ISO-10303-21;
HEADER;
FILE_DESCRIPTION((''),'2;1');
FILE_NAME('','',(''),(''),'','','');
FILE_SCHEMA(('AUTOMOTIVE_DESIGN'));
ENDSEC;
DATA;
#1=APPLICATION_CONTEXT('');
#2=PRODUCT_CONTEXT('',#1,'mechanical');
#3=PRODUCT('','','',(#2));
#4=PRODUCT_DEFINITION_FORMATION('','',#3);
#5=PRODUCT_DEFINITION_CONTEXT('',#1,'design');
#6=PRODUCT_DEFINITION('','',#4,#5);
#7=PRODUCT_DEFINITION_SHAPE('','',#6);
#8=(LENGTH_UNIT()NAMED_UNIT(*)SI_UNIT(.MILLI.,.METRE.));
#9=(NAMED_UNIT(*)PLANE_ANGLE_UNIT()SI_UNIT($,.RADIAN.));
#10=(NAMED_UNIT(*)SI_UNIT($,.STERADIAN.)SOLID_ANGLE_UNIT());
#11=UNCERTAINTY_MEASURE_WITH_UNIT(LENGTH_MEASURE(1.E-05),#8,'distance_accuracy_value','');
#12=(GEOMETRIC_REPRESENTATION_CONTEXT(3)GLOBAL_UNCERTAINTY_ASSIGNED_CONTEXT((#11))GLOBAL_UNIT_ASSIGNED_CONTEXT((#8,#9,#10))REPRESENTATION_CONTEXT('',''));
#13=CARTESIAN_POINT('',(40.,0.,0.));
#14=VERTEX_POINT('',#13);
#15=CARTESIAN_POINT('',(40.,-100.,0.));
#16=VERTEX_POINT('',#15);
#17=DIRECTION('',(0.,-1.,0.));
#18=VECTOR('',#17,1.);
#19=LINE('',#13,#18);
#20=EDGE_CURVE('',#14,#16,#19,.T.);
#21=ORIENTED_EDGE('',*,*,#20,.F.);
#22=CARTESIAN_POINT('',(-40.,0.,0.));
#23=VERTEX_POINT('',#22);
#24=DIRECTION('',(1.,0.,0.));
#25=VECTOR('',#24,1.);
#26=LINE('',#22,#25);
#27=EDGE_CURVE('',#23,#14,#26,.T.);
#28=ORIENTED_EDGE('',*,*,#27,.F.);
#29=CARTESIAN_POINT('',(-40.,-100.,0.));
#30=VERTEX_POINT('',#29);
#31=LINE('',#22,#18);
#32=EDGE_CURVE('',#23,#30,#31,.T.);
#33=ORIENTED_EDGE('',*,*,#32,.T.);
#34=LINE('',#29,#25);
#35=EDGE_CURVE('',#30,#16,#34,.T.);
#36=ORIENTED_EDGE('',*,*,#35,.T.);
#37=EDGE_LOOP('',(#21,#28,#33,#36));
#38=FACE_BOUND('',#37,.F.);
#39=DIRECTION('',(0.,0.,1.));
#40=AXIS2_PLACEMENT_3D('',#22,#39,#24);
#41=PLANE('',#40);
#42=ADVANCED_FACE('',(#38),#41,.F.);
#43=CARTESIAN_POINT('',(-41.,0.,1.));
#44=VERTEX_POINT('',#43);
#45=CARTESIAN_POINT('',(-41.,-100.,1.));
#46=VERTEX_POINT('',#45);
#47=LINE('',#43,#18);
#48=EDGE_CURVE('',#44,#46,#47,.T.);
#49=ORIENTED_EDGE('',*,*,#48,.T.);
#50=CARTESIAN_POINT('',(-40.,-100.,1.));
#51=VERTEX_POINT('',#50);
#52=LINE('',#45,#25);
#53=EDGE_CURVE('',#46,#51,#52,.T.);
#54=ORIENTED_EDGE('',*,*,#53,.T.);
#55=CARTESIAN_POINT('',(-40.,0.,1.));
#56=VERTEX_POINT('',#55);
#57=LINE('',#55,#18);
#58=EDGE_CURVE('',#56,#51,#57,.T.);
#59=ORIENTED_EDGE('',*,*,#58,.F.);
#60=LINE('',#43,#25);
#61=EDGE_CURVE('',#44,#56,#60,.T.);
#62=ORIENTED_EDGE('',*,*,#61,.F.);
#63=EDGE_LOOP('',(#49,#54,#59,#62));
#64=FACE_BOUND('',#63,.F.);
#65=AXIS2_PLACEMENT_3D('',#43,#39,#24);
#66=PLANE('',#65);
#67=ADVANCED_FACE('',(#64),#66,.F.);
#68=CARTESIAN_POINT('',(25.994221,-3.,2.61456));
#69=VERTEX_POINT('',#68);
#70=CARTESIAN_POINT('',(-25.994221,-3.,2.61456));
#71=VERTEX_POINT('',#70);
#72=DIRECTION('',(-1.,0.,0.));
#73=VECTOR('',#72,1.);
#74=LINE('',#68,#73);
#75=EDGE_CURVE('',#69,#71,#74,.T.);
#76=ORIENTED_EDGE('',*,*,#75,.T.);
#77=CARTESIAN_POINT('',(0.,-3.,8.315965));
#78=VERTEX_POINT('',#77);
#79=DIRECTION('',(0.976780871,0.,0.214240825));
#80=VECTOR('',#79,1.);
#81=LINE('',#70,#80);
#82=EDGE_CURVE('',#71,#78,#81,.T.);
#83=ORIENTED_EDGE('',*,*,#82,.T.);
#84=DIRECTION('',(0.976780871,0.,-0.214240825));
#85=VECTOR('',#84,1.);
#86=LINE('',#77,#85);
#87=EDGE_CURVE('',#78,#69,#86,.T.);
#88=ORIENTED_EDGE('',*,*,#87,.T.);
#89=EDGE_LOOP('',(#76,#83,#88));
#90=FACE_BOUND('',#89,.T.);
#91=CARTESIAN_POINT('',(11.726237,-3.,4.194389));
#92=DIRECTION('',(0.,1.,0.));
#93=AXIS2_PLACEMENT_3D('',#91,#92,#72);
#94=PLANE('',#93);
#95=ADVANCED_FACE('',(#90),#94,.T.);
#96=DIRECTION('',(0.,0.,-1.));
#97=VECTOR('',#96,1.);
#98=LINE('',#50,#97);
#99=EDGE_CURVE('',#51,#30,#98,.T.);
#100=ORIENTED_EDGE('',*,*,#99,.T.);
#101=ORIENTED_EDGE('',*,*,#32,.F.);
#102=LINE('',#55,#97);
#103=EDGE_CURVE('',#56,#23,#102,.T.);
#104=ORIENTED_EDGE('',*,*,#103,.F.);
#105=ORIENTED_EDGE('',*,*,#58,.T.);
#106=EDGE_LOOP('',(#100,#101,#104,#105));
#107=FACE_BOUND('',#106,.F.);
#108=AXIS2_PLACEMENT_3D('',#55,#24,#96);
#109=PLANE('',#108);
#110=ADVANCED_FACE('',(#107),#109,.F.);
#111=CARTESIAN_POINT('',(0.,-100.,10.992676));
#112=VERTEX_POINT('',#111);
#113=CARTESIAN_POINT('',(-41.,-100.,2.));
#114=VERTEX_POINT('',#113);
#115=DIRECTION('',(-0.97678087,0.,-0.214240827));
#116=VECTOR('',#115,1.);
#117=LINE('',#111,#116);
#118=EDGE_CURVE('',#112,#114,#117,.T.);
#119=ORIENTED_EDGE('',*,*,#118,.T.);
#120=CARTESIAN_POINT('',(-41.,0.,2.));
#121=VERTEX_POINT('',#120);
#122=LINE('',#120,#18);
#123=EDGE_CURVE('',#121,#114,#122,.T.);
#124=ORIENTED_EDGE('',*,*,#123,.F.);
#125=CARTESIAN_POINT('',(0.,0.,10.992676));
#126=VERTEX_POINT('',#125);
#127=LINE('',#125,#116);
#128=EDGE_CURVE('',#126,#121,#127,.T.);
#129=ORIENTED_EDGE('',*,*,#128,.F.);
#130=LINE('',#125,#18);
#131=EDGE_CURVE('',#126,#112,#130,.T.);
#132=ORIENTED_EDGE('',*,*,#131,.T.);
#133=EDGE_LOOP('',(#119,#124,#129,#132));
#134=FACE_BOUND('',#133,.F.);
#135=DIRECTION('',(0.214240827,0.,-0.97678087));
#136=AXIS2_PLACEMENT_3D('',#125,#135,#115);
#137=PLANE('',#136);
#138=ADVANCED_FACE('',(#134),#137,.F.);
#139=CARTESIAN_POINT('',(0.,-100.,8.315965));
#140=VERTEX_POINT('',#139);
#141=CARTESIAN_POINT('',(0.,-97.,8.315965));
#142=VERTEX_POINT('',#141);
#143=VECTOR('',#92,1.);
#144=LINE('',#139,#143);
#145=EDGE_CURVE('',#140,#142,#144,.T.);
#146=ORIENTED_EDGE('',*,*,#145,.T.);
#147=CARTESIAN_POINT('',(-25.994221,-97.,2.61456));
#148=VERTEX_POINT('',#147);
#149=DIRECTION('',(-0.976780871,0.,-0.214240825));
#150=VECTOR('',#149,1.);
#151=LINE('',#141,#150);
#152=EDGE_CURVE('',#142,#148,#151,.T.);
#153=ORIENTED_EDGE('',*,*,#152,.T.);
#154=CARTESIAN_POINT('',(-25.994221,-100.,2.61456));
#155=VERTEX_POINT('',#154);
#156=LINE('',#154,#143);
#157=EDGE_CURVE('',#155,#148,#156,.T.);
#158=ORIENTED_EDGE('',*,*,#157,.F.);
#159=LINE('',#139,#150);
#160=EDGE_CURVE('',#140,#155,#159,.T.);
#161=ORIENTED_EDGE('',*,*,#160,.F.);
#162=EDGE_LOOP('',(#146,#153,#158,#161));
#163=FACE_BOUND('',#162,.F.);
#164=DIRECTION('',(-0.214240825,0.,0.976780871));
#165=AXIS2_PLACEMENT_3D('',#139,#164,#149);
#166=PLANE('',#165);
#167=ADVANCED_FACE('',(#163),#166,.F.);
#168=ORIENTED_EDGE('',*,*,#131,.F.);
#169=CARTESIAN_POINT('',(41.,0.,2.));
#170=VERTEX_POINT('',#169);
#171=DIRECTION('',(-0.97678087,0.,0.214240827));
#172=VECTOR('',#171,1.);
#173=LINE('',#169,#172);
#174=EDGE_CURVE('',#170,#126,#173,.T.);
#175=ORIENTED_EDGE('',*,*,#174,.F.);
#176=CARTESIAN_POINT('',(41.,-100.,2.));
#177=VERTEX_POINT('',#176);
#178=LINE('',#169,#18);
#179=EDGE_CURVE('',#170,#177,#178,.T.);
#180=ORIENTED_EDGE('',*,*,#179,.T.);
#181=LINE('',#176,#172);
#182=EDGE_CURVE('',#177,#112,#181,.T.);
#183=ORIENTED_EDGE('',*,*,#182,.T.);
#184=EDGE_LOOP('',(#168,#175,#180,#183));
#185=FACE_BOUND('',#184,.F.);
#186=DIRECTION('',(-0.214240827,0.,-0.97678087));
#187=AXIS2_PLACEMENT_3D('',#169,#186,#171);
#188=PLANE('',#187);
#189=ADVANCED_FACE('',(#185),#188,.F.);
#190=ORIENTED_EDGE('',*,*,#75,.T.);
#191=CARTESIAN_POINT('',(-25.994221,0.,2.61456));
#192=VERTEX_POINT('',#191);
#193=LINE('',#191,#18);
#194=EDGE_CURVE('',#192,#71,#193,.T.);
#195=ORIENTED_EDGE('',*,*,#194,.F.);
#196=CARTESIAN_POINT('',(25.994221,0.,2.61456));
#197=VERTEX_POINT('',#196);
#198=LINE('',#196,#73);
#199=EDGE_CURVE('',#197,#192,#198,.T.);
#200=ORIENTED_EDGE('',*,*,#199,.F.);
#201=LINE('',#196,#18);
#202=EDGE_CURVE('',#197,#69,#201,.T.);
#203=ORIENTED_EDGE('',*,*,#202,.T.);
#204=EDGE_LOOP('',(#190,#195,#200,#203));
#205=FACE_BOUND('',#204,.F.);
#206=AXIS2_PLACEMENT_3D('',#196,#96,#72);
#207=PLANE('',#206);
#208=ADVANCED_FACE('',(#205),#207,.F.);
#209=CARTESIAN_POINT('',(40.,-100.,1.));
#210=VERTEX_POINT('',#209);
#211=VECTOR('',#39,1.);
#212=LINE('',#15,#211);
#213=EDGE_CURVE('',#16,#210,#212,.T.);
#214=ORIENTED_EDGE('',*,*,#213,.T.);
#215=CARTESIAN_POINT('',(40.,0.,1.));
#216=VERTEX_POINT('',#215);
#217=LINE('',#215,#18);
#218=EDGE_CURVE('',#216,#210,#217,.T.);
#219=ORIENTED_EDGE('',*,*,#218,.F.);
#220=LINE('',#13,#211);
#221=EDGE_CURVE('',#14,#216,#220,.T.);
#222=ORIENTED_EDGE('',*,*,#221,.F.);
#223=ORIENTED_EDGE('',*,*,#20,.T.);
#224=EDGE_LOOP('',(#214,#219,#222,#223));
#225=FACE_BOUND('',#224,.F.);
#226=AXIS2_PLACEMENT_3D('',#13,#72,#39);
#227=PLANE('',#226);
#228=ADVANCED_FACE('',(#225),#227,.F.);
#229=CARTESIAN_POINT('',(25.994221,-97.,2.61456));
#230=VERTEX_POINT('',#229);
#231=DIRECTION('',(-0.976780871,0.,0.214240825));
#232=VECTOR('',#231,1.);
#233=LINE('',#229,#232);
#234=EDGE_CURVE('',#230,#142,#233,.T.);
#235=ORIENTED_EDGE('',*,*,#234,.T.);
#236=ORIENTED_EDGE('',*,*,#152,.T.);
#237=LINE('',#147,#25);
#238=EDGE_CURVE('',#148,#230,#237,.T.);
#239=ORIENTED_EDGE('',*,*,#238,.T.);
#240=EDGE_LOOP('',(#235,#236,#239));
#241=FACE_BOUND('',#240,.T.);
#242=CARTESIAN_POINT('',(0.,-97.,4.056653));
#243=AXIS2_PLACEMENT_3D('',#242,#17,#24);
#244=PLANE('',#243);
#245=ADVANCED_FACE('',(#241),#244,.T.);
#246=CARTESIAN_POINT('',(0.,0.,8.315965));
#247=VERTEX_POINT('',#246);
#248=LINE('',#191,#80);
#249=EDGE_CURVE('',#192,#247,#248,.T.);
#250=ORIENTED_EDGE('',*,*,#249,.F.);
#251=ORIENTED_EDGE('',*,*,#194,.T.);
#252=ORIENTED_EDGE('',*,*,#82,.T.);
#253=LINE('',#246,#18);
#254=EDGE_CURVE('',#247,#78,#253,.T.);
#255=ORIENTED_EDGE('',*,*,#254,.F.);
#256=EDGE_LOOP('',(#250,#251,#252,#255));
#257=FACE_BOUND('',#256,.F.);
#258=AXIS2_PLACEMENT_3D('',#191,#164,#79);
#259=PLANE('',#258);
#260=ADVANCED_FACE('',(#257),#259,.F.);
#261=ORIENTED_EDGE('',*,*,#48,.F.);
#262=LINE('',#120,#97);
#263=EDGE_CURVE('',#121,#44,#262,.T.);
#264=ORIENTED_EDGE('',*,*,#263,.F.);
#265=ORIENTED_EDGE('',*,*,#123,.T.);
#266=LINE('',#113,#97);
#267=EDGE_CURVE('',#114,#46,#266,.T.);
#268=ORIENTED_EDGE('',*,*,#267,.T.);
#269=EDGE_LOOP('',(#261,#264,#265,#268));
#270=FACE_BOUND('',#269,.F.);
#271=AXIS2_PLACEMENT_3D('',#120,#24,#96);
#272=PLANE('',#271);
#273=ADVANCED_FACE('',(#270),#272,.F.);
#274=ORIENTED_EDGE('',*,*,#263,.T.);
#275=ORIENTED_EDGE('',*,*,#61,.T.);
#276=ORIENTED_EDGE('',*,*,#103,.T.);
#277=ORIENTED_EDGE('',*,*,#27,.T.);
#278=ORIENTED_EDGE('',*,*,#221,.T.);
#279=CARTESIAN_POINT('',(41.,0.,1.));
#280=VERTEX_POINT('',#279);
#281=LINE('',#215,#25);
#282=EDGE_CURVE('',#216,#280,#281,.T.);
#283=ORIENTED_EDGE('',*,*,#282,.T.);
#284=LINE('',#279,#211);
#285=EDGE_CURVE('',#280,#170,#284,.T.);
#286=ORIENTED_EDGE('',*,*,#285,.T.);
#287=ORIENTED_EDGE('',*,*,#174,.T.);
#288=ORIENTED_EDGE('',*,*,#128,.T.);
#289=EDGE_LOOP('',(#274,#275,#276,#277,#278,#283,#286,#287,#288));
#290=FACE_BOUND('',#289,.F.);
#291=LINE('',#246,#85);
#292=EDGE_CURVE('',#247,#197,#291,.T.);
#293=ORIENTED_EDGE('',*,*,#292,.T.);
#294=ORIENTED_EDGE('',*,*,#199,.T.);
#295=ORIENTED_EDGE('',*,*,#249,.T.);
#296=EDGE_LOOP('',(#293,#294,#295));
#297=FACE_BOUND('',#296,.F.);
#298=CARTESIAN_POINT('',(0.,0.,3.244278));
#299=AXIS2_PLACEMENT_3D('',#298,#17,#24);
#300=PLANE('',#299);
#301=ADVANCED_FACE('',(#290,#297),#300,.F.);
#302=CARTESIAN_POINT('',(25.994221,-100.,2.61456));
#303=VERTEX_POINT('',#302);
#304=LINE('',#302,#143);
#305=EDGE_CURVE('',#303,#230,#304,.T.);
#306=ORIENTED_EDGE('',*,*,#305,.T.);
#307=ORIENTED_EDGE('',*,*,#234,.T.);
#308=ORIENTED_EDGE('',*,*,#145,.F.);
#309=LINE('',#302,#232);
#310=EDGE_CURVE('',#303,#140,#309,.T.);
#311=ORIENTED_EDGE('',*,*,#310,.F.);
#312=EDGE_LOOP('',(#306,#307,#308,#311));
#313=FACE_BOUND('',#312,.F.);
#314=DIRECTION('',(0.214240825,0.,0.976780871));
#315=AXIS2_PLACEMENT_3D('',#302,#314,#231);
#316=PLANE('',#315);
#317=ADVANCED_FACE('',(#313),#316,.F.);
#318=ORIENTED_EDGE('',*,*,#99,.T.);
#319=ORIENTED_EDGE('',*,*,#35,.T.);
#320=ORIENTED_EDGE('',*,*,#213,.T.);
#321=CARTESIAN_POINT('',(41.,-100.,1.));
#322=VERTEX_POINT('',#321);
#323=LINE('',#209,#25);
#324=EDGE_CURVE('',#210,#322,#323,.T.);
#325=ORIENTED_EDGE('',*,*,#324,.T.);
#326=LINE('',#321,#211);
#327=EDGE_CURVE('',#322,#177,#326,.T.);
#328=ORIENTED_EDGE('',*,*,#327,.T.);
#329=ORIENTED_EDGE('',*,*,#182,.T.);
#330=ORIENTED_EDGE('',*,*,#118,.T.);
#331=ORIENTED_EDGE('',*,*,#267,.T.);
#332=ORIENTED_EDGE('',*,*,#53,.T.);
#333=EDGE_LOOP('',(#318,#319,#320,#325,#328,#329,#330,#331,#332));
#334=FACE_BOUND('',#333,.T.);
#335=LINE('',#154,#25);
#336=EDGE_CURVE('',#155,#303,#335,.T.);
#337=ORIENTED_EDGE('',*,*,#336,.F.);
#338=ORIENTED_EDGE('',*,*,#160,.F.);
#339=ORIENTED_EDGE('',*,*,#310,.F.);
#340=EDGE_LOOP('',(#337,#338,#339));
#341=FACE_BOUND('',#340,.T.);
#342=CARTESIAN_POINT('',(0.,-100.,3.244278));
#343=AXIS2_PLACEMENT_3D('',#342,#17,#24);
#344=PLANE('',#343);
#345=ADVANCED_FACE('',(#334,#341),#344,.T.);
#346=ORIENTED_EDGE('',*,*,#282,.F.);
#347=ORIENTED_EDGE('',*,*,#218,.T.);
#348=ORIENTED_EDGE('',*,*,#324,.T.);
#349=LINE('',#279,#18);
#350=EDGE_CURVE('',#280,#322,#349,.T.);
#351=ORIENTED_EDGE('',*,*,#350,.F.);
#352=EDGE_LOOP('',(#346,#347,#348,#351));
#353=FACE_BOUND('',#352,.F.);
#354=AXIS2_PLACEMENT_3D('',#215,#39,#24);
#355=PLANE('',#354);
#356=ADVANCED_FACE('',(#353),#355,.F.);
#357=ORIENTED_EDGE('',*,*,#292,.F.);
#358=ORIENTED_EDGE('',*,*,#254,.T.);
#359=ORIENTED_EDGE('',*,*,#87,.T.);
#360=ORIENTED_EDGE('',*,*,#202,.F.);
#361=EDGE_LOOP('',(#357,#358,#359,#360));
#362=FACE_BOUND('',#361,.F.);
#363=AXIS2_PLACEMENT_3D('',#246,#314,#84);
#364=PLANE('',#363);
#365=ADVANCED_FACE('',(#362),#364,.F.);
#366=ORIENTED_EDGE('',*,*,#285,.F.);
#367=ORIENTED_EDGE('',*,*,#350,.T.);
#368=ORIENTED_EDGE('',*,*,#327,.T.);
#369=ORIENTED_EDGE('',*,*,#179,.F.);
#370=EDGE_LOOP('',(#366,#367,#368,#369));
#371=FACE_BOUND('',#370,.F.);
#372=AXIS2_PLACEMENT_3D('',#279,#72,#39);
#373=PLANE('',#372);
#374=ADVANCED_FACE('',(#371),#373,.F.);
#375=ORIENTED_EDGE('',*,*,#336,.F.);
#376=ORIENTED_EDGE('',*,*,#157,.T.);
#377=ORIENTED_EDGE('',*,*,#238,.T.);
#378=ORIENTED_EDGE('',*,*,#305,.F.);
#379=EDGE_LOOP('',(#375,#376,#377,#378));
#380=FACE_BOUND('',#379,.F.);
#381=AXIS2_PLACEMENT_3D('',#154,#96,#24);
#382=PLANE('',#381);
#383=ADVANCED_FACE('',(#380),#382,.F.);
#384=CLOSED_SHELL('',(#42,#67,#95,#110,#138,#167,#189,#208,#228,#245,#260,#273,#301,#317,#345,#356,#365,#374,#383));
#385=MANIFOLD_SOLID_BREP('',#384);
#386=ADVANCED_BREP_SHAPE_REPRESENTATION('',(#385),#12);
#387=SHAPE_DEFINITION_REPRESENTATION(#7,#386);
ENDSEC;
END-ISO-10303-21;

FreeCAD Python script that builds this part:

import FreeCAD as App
import Part
import Sketcher
Q = App.Units.Quantity


def add_polygon(sketch, points):
    """Adds a closed chain of lines whose ends are joined by coincident constraints."""
    first, n = sketch.GeometryCount, len(points)
    for a, b in zip(points, points[1:] + points[:1]):
        sketch.addGeometry(Part.LineSegment(App.Vector(*a, 0), App.Vector(*b, 0)), False)
    for i in range(n):
        sketch.addConstraint(Sketcher.Constraint("Coincident", first + i, 2, first + (i + 1) % n, 1))

doc = App.newDocument("Part")
params = doc.addObject("Spreadsheet::Sheet", "Params")
for row, (alias, value) in enumerate([
    ("sketch1_width", "80 mm"),
    ("sketch1_width2", "1 mm"),
    ("pad1_length", "100 mm"),
    ("pocket1_length", "3 mm"),
    ("pocket2_length", "3 mm"),
], start=1):
    params.set(f"A{row}", alias)
    params.set(f"B{row}", "=" + value)
    params.setAlias(f"B{row}", alias)

body = doc.addObject("PartDesign::Body", "Body")

# Sketch on XZ plane
sketch1 = body.newObject("Sketcher::SketchObject", "Sketch")
sketch1.AttachmentSupport = (doc.getObject("XZ_Plane"), [""])
sketch1.MapMode = "FlatFace"
add_polygon(sketch1, [(-40, 0), (40, 0), (40, 1), (41, 1), (41, 2), (0, 11), (-41, 2), (-41, 1), (-40, 1)])  # lines 0-8
sketch1.addConstraint([
    Sketcher.Constraint("Horizontal", 0),
    Sketcher.Constraint("Vertical", 1),
    Sketcher.Constraint("Horizontal", 2),
    Sketcher.Constraint("Vertical", 3),
    Sketcher.Constraint("Vertical", 6),
    Sketcher.Constraint("Horizontal", 7),
    Sketcher.Constraint("Vertical", 8),
    Sketcher.Constraint("Symmetric", 0, 2, 8, 2, -1, 1),
    Sketcher.Constraint("Symmetric", 3, 2, 5, 2, -2),
    Sketcher.Constraint("PointOnObject", 4, 2, -2),
    Sketcher.Constraint("Horizontal", 2, 2, 6, 2),
    Sketcher.Constraint("Equal", 7, 1),
    Sketcher.Constraint("Equal", 1, 3),
    Sketcher.Constraint("DistanceX", 0, 1, 0, 2, Q("80 mm")),
    Sketcher.Constraint("DistanceX", 2, 1, 2, 2, Q("1 mm")),
    Sketcher.Constraint("Distance", 4, Q("41.974614 mm")),
])
sketch1.setExpression("Constraints[22]", "Params.sketch1_width")
sketch1.setExpression("Constraints[23]", "Params.sketch1_width2")
pad1 = body.newObject("PartDesign::Pad", "Pad")
pad1.Profile = sketch1
pad1.setExpression("Length", "Params.pad1_length")

# Sketch on XZ plane
sketch2 = body.newObject("Sketcher::SketchObject", "Sketch001")
sketch2.AttachmentSupport = (doc.getObject("XZ_Plane"), [""])
sketch2.MapMode = "FlatFace"
add_polygon(sketch2, [(0, 8), (26, 3), (-26, 3)])  # lines 0-2
sketch2.addConstraint([
    Sketcher.Constraint("Horizontal", 1),
    Sketcher.Constraint("PointOnObject", 2, 2, -2),
    Sketcher.Constraint("Equal", 0, 2),
    Sketcher.Constraint("Distance", 0, Q("26.612132 mm")),
    Sketcher.Constraint("DistanceX", 1, 2, 1, 1, Q("51.988442 mm")),
    Sketcher.Constraint("DistanceY", -1, 1, 0, 2, Q("2.61456 mm")),
])
pocket1 = body.newObject("PartDesign::Pocket", "Pocket")
pocket1.Profile = sketch2
pocket1.setExpression("Length", "Params.pocket1_length")
pocket1.Reversed = True

# Sketch on XZ plane
sketch3 = body.newObject("Sketcher::SketchObject", "Sketch002")
sketch3.AttachmentSupport = (doc.getObject("XZ_Plane"), [""])
sketch3.MapMode = "FlatFace"
sketch3.AttachmentOffset = App.Placement(App.Vector(0, 0, 100), App.Rotation())
add_polygon(sketch3, [(26, 3), (0, 8), (-26, 3)])  # lines 0-2
sketch3.addConstraint([
    Sketcher.Constraint("Horizontal", 2),
    Sketcher.Constraint("PointOnObject", 0, 2, -2),
    Sketcher.Constraint("Equal", 0, 1),
    Sketcher.Constraint("Distance", 0, Q("26.612132 mm")),
    Sketcher.Constraint("DistanceX", 2, 1, 2, 2, Q("51.988442 mm")),
    Sketcher.Constraint("DistanceY", -1, 1, 1, 2, Q("2.61456 mm")),
])
pocket2 = body.newObject("PartDesign::Pocket", "Pocket001")
pocket2.Profile = sketch3
pocket2.setExpression("Length", "Params.pocket2_length")

doc.recompute()
